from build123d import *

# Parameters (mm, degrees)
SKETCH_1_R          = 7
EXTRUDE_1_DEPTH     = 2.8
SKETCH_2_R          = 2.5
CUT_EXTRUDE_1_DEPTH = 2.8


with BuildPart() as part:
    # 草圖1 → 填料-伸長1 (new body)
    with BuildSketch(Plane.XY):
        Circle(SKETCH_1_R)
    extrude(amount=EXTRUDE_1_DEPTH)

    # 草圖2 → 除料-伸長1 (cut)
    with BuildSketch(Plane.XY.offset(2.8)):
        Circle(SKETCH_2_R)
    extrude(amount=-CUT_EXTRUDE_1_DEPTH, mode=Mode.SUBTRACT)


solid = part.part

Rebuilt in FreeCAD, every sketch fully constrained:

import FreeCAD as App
import Part
import Sketcher

V = App.Vector
Q = App.Units.Quantity

doc = App.newDocument("Part")
body = doc.addObject("PartDesign::Body", "Body")

# Sketch on XY plane
sketch1 = body.newObject("Sketcher::SketchObject", "Sketch")
sketch1.AttachmentSupport = (doc.getObject("XY_Plane"), [""])
sketch1.MapMode = "FlatFace"
sketch1.addGeometry(Part.Circle(V(0, 0, 0), V(0, 0, 1), 7), False)
sketch1.addConstraint([
    Sketcher.Constraint("Coincident", 0, 3, -1, 1),
    Sketcher.Constraint("Diameter", 0, Q("14 mm")),
])
pad1 = body.newObject("PartDesign::Pad", "Pad")
pad1.Profile = sketch1
pad1.Length = 2.8

# Sketch on XY plane
sketch2 = body.newObject("Sketcher::SketchObject", "Sketch001")
sketch2.AttachmentSupport = (doc.getObject("XY_Plane"), [""])
sketch2.MapMode = "FlatFace"
sketch2.AttachmentOffset = App.Placement(V(0, 0, 2.8), App.Rotation())
sketch2.addGeometry(Part.Circle(V(0, 0, 0), V(0, 0, 1), 2.5), False)
sketch2.addConstraint([
    Sketcher.Constraint("Coincident", 0, 3, -1, 1),
    Sketcher.Constraint("Diameter", 0, Q("5 mm")),
])
pocket1 = body.newObject("PartDesign::Pocket", "Pocket")
pocket1.Profile = sketch2
pocket1.Length = 2.8

doc.recompute()
